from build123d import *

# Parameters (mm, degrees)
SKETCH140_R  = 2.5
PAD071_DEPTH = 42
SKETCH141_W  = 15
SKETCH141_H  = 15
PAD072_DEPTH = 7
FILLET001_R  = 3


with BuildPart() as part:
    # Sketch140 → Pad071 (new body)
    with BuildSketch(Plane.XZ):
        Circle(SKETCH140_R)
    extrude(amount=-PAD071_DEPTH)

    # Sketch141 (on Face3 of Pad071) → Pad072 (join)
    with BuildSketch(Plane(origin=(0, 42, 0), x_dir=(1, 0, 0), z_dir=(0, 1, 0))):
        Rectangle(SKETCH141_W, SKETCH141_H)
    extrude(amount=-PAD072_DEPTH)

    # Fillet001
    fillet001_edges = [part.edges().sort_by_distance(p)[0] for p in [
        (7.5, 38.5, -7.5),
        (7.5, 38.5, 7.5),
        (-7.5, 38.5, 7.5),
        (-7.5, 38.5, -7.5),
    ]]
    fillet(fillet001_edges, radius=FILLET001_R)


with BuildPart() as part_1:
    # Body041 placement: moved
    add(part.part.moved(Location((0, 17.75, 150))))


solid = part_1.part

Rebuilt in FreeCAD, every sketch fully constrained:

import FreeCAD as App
import Part
import Sketcher
Q = App.Units.Quantity


def edges_at(feature, points):
    """Names of the edges that pass closest to the given points."""
    edges = feature.Shape.Edges
    near = lambda p: min(range(len(edges)), key=lambda i: edges[i].distToShape(Part.Vertex(*p))[0])
    return sorted({f"Edge{near(p) + 1}" for p in points})

doc = App.newDocument("Part")
body = doc.addObject("PartDesign::Body", "Body")

# Sketch on XZ plane
sketch1 = body.newObject("Sketcher::SketchObject", "Sketch")
sketch1.AttachmentSupport = (doc.getObject("XZ_Plane"), [""])
sketch1.MapMode = "FlatFace"
sketch1.addGeometry(Part.Circle(App.Vector(0, 0, 0), App.Vector(0, 0, 1), 2.5), False)
sketch1.addConstraint([
    Sketcher.Constraint("Coincident", 0, 3, -1, 1),
    Sketcher.Constraint("Diameter", 0, Q("5 mm")),
])
pad1 = body.newObject("PartDesign::Pad", "Pad")
pad1.Profile = sketch1
pad1.Length = 42
pad1.Reversed = True

# Sketch on XZ plane
sketch2 = body.newObject("Sketcher::SketchObject", "Sketch001")
sketch2.AttachmentSupport = (doc.getObject("XZ_Plane"), [""])
sketch2.MapMode = "FlatFace"
sketch2.AttachmentOffset = App.Placement(App.Vector(0, 0, -42), App.Rotation())
sketch2.addGeometry([
    Part.LineSegment(App.Vector(-7.5, -7.5, 0), App.Vector(-7.5, 7.5, 0)),
    Part.LineSegment(App.Vector(-7.5, 7.5, 0), App.Vector(7.5, 7.5, 0)),
    Part.LineSegment(App.Vector(7.5, 7.5, 0), App.Vector(7.5, -7.5, 0)),
    Part.LineSegment(App.Vector(7.5, -7.5, 0), App.Vector(-7.5, -7.5, 0)),
], False)
sketch2.addConstraint([
    Sketcher.Constraint("Coincident", 0, 2, 1, 1),
    Sketcher.Constraint("Coincident", 1, 2, 2, 1),
    Sketcher.Constraint("Coincident", 2, 2, 3, 1),
    Sketcher.Constraint("Coincident", 3, 2, 0, 1),
    Sketcher.Constraint("Vertical", 0),
    Sketcher.Constraint("Horizontal", 1),
    Sketcher.Constraint("Vertical", 2),
    Sketcher.Constraint("Horizontal", 3),
    Sketcher.Constraint("Symmetric", 0, 2, 2, 2, -1, 1),
    Sketcher.Constraint("Equal", 3, 0),
    Sketcher.Constraint("DistanceX", 1, 1, 1, 2, Q("15 mm")),
])
pad2 = body.newObject("PartDesign::Pad", "Pad001")
pad2.Profile = sketch2
pad2.Length = 7
doc.recompute()

fillet = body.newObject("PartDesign::Fillet", "Fillet")
fillet.Base = (pad2, edges_at(pad2, [
    (7.5, 38.5, -7.5),
    (7.5, 38.5, 7.5),
    (-7.5, 38.5, 7.5),
    (-7.5, 38.5, -7.5),
]))
fillet.Radius = 3
body2 = doc.addObject("PartDesign::Body", "Body001")
doc.recompute()

body.Placement = App.Placement(App.Vector(0, 17.75, 150), App.Rotation(App.Vector(0, 0, 1), 0))
boolean = body2.newObject("PartDesign::Boolean", "Boolean")
boolean.Type = "Fuse"
boolean.addObjects([body])

doc.recompute()
